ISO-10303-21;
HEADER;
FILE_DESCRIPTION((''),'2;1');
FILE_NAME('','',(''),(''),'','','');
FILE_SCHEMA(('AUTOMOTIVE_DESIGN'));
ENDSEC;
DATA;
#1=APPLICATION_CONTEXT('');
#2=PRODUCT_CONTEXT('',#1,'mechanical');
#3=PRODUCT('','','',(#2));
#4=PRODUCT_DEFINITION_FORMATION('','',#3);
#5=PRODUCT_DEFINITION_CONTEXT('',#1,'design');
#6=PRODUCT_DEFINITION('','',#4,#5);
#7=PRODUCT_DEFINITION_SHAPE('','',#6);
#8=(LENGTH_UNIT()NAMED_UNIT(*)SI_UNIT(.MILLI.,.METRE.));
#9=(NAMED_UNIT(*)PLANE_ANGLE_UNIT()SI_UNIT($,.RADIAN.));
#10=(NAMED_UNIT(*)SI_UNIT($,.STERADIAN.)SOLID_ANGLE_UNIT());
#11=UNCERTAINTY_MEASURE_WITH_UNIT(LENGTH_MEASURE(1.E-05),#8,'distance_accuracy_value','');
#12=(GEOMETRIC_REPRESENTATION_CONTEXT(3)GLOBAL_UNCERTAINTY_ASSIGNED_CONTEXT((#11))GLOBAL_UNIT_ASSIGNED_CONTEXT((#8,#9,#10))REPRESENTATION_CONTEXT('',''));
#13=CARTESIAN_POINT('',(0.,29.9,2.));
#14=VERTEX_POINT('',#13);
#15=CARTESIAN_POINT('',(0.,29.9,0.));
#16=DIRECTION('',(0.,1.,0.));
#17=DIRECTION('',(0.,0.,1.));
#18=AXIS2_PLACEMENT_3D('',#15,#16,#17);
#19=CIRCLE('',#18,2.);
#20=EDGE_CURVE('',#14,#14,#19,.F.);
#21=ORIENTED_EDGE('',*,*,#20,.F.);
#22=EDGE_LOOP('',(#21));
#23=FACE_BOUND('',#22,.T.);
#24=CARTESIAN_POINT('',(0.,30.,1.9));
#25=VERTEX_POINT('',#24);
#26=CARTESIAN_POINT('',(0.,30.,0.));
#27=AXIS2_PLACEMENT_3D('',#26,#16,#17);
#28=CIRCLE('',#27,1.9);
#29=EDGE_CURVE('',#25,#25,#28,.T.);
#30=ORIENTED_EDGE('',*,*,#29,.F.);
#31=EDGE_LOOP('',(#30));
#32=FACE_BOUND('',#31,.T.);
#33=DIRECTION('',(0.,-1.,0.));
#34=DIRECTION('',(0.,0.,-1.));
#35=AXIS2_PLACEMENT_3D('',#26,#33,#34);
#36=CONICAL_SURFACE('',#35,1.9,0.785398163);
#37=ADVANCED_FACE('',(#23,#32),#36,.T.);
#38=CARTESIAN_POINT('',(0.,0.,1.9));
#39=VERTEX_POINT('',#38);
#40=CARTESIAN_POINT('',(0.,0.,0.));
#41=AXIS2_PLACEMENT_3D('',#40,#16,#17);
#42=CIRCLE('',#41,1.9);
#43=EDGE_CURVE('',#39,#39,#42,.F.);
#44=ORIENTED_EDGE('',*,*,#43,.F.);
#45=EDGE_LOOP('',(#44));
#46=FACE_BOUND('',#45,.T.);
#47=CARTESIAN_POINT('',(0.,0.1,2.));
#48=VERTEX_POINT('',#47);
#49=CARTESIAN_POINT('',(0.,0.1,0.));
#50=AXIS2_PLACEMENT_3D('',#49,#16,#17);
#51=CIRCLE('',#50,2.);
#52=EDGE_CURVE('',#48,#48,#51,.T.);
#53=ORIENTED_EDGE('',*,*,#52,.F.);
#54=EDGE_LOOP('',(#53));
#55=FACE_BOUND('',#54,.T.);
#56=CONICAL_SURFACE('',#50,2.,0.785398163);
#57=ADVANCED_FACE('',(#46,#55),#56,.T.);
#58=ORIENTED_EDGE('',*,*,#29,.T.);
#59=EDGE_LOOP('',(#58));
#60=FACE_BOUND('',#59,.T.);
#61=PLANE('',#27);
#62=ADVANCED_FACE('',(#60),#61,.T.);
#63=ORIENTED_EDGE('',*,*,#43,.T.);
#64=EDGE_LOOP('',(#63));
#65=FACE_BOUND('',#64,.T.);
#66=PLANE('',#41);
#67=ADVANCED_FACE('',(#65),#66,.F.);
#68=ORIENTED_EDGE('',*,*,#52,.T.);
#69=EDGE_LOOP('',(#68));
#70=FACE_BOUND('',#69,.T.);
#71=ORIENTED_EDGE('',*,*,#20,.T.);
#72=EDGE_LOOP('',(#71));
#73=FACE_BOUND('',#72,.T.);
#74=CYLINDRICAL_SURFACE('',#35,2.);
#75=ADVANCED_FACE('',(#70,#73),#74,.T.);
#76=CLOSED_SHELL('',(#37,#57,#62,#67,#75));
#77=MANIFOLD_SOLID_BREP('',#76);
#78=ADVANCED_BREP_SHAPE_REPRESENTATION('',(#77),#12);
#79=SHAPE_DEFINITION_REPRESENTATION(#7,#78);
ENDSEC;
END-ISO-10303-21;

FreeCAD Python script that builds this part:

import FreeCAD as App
import Part
import Sketcher

V = App.Vector
Q = App.Units.Quantity


def edges_at(feature, points):
    """Names of the edges that pass closest to the given points."""
    edges = feature.Shape.Edges
    near = lambda p: min(range(len(edges)), key=lambda i: edges[i].distToShape(Part.Vertex(*p))[0])
    return sorted({f"Edge{near(p) + 1}" for p in points})

doc = App.newDocument("Part")
params = doc.addObject("Spreadsheet::Sheet", "Params")
for row, (alias, value) in enumerate([
    ("sketch1_diameter", "4 mm"),
    ("pad1_length", "30 mm"),
    ("chamfer_size", "0.1 mm"),
], start=1):
    params.set(f"A{row}", alias)
    params.set(f"B{row}", "=" + value)
    params.setAlias(f"B{row}", alias)

body = doc.addObject("PartDesign::Body", "Body")

# Sketch on XZ plane
sketch1 = body.newObject("Sketcher::SketchObject", "Sketch")
sketch1.AttachmentSupport = (doc.getObject("XZ_Plane"), [""])
sketch1.MapMode = "FlatFace"
sketch1.addGeometry(Part.Circle(V(0, 0, 0), V(0, 0, 1), 2), False)
sketch1.addConstraint([
    Sketcher.Constraint("Coincident", 0, 3, -1, 1),
    Sketcher.Constraint("Diameter", 0, Q("4 mm")),
])
sketch1.setExpression("Constraints[1]", "Params.sketch1_diameter")
pad1 = body.newObject("PartDesign::Pad", "Pad")
pad1.Profile = sketch1
pad1.setExpression("Length", "Params.pad1_length")
pad1.Reversed = True
doc.recompute()

chamfer = body.newObject("PartDesign::Chamfer", "Chamfer")
chamfer.Base = (pad1, edges_at(pad1, [(-2, 0, 0), (-2, 30, 0)]))
chamfer.setExpression("Size", "Params.chamfer_size")

doc.recompute()
